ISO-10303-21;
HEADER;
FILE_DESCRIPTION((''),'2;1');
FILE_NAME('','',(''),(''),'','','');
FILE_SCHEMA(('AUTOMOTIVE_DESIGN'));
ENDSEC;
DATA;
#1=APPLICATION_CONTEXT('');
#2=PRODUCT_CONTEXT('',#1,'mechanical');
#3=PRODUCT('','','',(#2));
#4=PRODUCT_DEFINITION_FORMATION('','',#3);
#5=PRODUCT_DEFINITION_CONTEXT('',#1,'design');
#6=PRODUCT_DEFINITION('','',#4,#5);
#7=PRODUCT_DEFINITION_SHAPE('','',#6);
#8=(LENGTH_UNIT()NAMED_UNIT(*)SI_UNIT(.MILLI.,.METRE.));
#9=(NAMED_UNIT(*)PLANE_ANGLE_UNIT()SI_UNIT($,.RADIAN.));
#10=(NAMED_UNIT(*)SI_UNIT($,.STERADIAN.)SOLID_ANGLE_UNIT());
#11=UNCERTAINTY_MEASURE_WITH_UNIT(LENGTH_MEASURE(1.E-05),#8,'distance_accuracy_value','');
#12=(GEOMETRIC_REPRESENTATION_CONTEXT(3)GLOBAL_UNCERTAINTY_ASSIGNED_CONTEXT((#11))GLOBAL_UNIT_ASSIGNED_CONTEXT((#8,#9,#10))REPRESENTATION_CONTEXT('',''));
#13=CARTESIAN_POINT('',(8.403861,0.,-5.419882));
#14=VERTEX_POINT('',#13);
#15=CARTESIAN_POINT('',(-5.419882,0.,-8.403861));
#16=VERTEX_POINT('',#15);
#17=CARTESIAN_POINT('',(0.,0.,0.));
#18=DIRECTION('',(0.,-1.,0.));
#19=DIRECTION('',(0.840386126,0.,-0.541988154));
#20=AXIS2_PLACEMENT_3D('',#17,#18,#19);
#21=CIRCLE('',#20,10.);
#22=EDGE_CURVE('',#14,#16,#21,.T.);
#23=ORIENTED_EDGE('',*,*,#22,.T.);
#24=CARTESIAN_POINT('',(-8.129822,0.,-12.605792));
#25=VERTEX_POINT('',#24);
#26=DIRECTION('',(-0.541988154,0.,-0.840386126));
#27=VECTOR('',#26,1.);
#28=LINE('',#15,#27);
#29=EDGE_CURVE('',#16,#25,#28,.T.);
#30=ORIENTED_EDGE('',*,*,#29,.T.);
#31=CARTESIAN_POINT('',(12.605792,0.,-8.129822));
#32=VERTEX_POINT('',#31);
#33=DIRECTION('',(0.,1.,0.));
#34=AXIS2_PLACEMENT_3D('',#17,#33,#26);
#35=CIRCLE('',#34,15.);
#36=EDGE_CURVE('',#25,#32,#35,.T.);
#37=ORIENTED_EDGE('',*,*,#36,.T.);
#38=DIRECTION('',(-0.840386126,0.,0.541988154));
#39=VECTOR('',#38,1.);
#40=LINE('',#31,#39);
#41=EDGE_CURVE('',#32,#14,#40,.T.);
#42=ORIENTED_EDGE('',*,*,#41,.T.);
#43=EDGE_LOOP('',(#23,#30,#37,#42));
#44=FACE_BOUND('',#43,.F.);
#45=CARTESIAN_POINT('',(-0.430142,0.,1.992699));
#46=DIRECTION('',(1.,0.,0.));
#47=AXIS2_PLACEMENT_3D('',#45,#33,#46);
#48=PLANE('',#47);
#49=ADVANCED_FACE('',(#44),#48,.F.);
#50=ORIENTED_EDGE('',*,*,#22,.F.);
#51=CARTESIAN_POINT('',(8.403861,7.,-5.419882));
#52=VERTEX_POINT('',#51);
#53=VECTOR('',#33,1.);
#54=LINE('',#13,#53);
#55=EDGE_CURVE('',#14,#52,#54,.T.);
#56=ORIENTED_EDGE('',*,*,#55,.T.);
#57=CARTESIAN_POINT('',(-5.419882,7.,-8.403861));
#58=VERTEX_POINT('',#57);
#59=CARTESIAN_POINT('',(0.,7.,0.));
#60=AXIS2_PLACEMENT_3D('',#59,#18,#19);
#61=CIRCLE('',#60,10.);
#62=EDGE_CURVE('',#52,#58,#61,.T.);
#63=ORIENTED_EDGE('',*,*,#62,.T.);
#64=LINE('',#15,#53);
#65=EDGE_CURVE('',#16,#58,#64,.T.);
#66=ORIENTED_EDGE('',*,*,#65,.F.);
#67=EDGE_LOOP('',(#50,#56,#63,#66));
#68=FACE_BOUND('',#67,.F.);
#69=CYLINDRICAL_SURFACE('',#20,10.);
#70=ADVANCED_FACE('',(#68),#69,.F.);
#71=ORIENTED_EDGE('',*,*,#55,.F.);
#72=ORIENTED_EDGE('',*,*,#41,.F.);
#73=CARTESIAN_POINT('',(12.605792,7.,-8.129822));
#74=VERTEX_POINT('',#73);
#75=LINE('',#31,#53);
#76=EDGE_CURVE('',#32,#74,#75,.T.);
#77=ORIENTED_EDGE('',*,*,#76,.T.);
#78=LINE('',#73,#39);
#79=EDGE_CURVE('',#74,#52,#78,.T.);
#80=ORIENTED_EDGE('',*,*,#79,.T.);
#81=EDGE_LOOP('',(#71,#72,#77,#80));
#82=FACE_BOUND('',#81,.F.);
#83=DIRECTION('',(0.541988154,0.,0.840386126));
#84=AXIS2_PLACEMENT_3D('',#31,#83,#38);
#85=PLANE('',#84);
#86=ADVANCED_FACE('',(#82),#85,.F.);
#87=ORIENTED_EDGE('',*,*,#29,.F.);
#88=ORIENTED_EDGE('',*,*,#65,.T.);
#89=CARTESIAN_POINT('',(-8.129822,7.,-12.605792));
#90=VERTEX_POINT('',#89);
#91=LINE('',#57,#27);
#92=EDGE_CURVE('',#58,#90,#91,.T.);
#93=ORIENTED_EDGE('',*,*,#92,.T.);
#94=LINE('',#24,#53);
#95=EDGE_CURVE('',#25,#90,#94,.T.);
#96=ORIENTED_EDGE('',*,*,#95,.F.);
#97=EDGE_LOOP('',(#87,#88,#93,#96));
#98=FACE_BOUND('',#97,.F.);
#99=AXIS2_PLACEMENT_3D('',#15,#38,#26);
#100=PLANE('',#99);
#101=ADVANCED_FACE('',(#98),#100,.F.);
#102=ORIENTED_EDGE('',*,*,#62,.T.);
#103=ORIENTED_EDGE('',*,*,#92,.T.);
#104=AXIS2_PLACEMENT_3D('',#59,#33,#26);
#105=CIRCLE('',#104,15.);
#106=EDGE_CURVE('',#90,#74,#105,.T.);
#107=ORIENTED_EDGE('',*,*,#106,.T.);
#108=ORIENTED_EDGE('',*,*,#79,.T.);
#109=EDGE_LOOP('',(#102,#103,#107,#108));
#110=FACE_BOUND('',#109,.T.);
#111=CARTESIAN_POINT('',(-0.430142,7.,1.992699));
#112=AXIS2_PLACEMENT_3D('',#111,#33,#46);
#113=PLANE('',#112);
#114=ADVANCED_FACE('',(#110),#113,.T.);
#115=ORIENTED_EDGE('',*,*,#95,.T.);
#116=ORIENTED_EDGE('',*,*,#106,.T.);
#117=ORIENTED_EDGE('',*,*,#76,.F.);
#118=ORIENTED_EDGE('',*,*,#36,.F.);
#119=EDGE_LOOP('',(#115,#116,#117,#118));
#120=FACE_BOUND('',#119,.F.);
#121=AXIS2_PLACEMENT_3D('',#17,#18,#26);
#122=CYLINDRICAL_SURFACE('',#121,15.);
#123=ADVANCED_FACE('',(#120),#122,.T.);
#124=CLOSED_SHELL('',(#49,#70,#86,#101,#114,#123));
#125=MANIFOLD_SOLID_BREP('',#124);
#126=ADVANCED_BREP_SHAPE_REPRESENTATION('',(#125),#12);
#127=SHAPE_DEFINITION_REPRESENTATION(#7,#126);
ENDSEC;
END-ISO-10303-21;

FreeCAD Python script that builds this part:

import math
import FreeCAD as App
import Part
import Sketcher

doc = App.newDocument("Part")
body = doc.addObject("PartDesign::Body", "Body")

# Sketch on XZ plane
sketch1 = body.newObject("Sketcher::SketchObject", "Sketch")
sketch1.AttachmentSupport = (doc.getObject("XZ_Plane"), [""])
sketch1.MapMode = "FlatFace"
sketch1.addGeometry([
    Part.LineSegment(App.Vector(-5, -8, 0), App.Vector(-8, -13, 0)),
    Part.ArcOfCircle(Part.Circle(App.Vector(0, 0, 0), App.Vector(0, 0, 1), 15), math.radians(-33), math.radians(237)),
    Part.LineSegment(App.Vector(13, -8, 0), App.Vector(8, -5, 0)),
    Part.ArcOfCircle(Part.Circle(App.Vector(0, 0, 0), App.Vector(0, 0, 1), 10), math.radians(-33), math.radians(237)),
], False)
sketch1.addConstraint([
    Sketcher.Constraint("Coincident", 0, 2, 1, 2),
    Sketcher.Constraint("Coincident", 1, 1, 2, 1),
    Sketcher.Constraint("Coincident", 2, 2, 3, 1),
    Sketcher.Constraint("Coincident", 3, 2, 0, 1),
    Sketcher.Constraint("Coincident", 1, 3, -1, 1),
    Sketcher.Constraint("Coincident", 3, 3, -1, 1),
    Sketcher.Constraint("Perpendicular", 0, 2),
    Sketcher.Constraint("Radius", 1, 15.0),
    Sketcher.Constraint("Radius", 3, 10.0),
    Sketcher.Constraint("DistanceY", 0, 2, -1, 1, 12.605792),
    Sketcher.Constraint("DistanceX", -1, 1, 1, 1, 12.605792),
    Sketcher.Constraint("DistanceX", -1, 1, 2, 2, 8.403861),
])
pad1 = body.newObject("PartDesign::Pad", "Pad")
pad1.Profile = sketch1
pad1.Length = 7
pad1.Reversed = True

doc.recompute()
